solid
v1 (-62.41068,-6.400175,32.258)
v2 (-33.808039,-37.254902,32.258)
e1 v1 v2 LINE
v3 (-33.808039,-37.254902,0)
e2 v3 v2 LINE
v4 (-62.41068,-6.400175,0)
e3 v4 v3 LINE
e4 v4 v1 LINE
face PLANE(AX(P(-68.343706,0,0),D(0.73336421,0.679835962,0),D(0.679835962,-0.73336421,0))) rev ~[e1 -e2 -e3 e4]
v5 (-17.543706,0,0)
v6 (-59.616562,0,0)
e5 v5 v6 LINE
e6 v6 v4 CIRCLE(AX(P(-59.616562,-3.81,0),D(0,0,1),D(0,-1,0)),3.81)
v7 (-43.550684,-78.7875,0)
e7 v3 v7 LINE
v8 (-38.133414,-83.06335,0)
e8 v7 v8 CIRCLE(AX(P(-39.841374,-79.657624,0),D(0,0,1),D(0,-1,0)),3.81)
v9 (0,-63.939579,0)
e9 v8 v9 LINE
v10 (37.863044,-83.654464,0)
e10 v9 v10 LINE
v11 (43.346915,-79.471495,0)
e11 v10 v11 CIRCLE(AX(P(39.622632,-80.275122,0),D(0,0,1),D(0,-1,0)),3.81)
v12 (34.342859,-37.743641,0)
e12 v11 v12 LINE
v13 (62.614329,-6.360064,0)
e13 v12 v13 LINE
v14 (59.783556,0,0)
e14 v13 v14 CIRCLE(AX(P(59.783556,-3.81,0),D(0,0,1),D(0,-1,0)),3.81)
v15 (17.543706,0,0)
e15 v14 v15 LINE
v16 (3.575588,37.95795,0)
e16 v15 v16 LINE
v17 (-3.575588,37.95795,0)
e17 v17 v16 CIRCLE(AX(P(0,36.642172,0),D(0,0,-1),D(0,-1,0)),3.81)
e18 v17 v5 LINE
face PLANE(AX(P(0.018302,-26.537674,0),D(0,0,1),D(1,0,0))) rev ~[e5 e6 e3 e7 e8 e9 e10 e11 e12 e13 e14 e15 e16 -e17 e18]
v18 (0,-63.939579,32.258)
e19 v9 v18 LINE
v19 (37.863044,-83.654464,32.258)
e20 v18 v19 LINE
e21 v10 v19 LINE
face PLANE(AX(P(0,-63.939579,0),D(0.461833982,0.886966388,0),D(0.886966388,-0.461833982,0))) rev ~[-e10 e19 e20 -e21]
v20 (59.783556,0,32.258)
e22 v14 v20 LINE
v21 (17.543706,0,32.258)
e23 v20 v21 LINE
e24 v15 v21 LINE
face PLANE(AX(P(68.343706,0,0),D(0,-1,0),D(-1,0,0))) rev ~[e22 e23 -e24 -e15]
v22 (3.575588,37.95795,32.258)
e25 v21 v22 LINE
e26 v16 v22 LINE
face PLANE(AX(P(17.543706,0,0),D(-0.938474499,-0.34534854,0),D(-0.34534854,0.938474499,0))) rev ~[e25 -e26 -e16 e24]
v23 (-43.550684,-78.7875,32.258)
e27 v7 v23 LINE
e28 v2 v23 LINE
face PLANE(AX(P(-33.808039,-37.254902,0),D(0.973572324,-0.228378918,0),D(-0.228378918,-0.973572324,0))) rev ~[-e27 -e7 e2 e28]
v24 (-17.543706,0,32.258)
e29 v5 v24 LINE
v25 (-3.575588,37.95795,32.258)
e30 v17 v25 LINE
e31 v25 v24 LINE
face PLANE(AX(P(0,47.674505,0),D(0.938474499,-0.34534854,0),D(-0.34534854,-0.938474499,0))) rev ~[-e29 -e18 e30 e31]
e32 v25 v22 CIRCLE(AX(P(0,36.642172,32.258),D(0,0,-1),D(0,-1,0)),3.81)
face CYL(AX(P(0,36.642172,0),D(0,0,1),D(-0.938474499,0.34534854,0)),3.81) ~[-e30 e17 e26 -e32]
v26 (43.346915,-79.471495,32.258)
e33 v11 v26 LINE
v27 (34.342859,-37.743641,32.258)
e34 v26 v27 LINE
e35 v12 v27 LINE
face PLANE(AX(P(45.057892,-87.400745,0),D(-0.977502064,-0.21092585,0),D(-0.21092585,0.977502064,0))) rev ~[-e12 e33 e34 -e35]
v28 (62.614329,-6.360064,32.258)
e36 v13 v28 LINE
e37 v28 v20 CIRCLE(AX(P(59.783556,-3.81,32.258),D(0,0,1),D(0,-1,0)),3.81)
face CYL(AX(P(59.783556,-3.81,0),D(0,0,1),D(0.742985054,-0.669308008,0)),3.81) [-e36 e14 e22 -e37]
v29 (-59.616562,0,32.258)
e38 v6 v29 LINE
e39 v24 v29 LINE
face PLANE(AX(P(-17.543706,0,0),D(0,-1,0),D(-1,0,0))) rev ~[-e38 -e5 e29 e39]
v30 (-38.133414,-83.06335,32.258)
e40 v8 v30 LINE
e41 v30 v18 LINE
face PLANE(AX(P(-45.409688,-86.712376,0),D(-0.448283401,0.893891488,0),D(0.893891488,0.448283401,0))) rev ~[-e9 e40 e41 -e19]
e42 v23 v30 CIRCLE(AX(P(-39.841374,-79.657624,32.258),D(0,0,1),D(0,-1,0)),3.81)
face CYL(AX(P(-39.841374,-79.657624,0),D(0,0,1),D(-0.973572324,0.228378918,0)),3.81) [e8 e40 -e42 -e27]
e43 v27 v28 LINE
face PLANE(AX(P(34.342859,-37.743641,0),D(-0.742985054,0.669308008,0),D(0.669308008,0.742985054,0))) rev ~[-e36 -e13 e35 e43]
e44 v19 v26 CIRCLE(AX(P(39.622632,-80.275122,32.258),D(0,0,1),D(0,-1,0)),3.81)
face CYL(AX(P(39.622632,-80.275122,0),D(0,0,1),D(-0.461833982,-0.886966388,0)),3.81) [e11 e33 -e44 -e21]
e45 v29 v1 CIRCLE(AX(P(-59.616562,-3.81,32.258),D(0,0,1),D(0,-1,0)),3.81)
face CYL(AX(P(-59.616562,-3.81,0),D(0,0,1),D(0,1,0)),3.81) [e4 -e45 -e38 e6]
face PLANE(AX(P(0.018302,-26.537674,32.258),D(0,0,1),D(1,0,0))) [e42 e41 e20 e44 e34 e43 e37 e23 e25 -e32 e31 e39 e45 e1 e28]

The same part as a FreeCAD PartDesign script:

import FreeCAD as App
import Part
import Sketcher

V = App.Vector
Q = App.Units.Quantity


def edges_at(feature, points):
    """Names of the edges that pass closest to the given points."""
    edges = feature.Shape.Edges
    near = lambda p: min(range(len(edges)), key=lambda i: edges[i].distToShape(Part.Vertex(*p))[0])
    return sorted({f"Edge{near(p) + 1}" for p in points})


def add_polygon(sketch, points):
    """Adds a closed chain of lines whose ends are joined by coincident constraints."""
    first, n = sketch.GeometryCount, len(points)
    for a, b in zip(points, points[1:] + points[:1]):
        sketch.addGeometry(Part.LineSegment(App.Vector(*a, 0), App.Vector(*b, 0)), False)
    for i in range(n):
        sketch.addConstraint(Sketcher.Constraint("Coincident", first + i, 2, first + (i + 1) % n, 1))

doc = App.newDocument("Part")
params = doc.addObject("Spreadsheet::Sheet", "Params")
for row, (alias, value) in enumerate([
    ("sketch1_width", "2 in"),
    ("sketch1_length", "2 in"),
    ("pad1_length", "1.27 in"),
    ("fillet_radius", "0.15 in"),
], start=1):
    params.set(f"A{row}", alias)
    params.set(f"B{row}", "=" + value)
    params.setAlias(f"B{row}", alias)

body = doc.addObject("PartDesign::Body", "Body")

# Sketch on XY plane
sketch1 = body.newObject("Sketcher::SketchObject", "Sketch")
sketch1.AttachmentSupport = (doc.getObject("XY_Plane"), [""])
sketch1.MapMode = "FlatFace"
add_polygon(sketch1, [(0, 48), (-18, 0), (-68, 0), (-34, -37), (-45, -87), (0, -64), (45, -87), (34, -38), (68, 0), (18, 0)])  # lines 0-9
sketch1.addConstraint([
    Sketcher.Constraint("Horizontal", 1),
    Sketcher.Constraint("Horizontal", 8),
    Sketcher.Constraint("Symmetric", 1, 2, 7, 2, -1, 1),
    Sketcher.Constraint("Symmetric", 0, 2, 8, 2, -2),
    Sketcher.Constraint("PointOnObject", 4, 2, -2),
    Sketcher.Constraint("PointOnObject", 9, 2, -2),
    Sketcher.Constraint("Equal", 0, 2),
    Sketcher.Constraint("Equal", 2, 3),
    Sketcher.Constraint("Equal", 3, 4),
    Sketcher.Constraint("Equal", 4, 5),
    Sketcher.Constraint("Equal", 5, 6),
    Sketcher.Constraint("Equal", 6, 7),
    Sketcher.Constraint("DistanceX", 1, 2, 1, 1, Q("2 in")),
    Sketcher.Constraint("Distance", 0, Q("2 in")),
    Sketcher.Constraint("DistanceX", 0, 2, 5, 2, 62.601598),
    Sketcher.Constraint("DistanceX", 2, 2, 6, 2, 68.150898),
    Sketcher.Constraint("DistanceX", 2, 2, -1, 1, 33.808039),
    Sketcher.Constraint("DistanceX", 3, 2, -1, 1, 45.409688),
])
sketch1.setExpression("Constraints[22]", "Params.sketch1_width")
sketch1.setExpression("Constraints[23]", "Params.sketch1_length")
pad1 = body.newObject("PartDesign::Pad", "Pad")
pad1.Profile = sketch1
pad1.setExpression("Length", "Params.pad1_length")
doc.recompute()

fillet = body.newObject("PartDesign::Fillet", "Fillet")
fillet.Base = (pad1, edges_at(pad1, [
    (45.058, -87.401, 16.129),
    (68.344, 0, 16.129),
    (0, 47.675, 16.129),
    (-45.41, -86.712, 16.129),
    (-68.344, 0, 16.129),
]))
fillet.setExpression("Radius", "Params.fillet_radius")

doc.recompute()
